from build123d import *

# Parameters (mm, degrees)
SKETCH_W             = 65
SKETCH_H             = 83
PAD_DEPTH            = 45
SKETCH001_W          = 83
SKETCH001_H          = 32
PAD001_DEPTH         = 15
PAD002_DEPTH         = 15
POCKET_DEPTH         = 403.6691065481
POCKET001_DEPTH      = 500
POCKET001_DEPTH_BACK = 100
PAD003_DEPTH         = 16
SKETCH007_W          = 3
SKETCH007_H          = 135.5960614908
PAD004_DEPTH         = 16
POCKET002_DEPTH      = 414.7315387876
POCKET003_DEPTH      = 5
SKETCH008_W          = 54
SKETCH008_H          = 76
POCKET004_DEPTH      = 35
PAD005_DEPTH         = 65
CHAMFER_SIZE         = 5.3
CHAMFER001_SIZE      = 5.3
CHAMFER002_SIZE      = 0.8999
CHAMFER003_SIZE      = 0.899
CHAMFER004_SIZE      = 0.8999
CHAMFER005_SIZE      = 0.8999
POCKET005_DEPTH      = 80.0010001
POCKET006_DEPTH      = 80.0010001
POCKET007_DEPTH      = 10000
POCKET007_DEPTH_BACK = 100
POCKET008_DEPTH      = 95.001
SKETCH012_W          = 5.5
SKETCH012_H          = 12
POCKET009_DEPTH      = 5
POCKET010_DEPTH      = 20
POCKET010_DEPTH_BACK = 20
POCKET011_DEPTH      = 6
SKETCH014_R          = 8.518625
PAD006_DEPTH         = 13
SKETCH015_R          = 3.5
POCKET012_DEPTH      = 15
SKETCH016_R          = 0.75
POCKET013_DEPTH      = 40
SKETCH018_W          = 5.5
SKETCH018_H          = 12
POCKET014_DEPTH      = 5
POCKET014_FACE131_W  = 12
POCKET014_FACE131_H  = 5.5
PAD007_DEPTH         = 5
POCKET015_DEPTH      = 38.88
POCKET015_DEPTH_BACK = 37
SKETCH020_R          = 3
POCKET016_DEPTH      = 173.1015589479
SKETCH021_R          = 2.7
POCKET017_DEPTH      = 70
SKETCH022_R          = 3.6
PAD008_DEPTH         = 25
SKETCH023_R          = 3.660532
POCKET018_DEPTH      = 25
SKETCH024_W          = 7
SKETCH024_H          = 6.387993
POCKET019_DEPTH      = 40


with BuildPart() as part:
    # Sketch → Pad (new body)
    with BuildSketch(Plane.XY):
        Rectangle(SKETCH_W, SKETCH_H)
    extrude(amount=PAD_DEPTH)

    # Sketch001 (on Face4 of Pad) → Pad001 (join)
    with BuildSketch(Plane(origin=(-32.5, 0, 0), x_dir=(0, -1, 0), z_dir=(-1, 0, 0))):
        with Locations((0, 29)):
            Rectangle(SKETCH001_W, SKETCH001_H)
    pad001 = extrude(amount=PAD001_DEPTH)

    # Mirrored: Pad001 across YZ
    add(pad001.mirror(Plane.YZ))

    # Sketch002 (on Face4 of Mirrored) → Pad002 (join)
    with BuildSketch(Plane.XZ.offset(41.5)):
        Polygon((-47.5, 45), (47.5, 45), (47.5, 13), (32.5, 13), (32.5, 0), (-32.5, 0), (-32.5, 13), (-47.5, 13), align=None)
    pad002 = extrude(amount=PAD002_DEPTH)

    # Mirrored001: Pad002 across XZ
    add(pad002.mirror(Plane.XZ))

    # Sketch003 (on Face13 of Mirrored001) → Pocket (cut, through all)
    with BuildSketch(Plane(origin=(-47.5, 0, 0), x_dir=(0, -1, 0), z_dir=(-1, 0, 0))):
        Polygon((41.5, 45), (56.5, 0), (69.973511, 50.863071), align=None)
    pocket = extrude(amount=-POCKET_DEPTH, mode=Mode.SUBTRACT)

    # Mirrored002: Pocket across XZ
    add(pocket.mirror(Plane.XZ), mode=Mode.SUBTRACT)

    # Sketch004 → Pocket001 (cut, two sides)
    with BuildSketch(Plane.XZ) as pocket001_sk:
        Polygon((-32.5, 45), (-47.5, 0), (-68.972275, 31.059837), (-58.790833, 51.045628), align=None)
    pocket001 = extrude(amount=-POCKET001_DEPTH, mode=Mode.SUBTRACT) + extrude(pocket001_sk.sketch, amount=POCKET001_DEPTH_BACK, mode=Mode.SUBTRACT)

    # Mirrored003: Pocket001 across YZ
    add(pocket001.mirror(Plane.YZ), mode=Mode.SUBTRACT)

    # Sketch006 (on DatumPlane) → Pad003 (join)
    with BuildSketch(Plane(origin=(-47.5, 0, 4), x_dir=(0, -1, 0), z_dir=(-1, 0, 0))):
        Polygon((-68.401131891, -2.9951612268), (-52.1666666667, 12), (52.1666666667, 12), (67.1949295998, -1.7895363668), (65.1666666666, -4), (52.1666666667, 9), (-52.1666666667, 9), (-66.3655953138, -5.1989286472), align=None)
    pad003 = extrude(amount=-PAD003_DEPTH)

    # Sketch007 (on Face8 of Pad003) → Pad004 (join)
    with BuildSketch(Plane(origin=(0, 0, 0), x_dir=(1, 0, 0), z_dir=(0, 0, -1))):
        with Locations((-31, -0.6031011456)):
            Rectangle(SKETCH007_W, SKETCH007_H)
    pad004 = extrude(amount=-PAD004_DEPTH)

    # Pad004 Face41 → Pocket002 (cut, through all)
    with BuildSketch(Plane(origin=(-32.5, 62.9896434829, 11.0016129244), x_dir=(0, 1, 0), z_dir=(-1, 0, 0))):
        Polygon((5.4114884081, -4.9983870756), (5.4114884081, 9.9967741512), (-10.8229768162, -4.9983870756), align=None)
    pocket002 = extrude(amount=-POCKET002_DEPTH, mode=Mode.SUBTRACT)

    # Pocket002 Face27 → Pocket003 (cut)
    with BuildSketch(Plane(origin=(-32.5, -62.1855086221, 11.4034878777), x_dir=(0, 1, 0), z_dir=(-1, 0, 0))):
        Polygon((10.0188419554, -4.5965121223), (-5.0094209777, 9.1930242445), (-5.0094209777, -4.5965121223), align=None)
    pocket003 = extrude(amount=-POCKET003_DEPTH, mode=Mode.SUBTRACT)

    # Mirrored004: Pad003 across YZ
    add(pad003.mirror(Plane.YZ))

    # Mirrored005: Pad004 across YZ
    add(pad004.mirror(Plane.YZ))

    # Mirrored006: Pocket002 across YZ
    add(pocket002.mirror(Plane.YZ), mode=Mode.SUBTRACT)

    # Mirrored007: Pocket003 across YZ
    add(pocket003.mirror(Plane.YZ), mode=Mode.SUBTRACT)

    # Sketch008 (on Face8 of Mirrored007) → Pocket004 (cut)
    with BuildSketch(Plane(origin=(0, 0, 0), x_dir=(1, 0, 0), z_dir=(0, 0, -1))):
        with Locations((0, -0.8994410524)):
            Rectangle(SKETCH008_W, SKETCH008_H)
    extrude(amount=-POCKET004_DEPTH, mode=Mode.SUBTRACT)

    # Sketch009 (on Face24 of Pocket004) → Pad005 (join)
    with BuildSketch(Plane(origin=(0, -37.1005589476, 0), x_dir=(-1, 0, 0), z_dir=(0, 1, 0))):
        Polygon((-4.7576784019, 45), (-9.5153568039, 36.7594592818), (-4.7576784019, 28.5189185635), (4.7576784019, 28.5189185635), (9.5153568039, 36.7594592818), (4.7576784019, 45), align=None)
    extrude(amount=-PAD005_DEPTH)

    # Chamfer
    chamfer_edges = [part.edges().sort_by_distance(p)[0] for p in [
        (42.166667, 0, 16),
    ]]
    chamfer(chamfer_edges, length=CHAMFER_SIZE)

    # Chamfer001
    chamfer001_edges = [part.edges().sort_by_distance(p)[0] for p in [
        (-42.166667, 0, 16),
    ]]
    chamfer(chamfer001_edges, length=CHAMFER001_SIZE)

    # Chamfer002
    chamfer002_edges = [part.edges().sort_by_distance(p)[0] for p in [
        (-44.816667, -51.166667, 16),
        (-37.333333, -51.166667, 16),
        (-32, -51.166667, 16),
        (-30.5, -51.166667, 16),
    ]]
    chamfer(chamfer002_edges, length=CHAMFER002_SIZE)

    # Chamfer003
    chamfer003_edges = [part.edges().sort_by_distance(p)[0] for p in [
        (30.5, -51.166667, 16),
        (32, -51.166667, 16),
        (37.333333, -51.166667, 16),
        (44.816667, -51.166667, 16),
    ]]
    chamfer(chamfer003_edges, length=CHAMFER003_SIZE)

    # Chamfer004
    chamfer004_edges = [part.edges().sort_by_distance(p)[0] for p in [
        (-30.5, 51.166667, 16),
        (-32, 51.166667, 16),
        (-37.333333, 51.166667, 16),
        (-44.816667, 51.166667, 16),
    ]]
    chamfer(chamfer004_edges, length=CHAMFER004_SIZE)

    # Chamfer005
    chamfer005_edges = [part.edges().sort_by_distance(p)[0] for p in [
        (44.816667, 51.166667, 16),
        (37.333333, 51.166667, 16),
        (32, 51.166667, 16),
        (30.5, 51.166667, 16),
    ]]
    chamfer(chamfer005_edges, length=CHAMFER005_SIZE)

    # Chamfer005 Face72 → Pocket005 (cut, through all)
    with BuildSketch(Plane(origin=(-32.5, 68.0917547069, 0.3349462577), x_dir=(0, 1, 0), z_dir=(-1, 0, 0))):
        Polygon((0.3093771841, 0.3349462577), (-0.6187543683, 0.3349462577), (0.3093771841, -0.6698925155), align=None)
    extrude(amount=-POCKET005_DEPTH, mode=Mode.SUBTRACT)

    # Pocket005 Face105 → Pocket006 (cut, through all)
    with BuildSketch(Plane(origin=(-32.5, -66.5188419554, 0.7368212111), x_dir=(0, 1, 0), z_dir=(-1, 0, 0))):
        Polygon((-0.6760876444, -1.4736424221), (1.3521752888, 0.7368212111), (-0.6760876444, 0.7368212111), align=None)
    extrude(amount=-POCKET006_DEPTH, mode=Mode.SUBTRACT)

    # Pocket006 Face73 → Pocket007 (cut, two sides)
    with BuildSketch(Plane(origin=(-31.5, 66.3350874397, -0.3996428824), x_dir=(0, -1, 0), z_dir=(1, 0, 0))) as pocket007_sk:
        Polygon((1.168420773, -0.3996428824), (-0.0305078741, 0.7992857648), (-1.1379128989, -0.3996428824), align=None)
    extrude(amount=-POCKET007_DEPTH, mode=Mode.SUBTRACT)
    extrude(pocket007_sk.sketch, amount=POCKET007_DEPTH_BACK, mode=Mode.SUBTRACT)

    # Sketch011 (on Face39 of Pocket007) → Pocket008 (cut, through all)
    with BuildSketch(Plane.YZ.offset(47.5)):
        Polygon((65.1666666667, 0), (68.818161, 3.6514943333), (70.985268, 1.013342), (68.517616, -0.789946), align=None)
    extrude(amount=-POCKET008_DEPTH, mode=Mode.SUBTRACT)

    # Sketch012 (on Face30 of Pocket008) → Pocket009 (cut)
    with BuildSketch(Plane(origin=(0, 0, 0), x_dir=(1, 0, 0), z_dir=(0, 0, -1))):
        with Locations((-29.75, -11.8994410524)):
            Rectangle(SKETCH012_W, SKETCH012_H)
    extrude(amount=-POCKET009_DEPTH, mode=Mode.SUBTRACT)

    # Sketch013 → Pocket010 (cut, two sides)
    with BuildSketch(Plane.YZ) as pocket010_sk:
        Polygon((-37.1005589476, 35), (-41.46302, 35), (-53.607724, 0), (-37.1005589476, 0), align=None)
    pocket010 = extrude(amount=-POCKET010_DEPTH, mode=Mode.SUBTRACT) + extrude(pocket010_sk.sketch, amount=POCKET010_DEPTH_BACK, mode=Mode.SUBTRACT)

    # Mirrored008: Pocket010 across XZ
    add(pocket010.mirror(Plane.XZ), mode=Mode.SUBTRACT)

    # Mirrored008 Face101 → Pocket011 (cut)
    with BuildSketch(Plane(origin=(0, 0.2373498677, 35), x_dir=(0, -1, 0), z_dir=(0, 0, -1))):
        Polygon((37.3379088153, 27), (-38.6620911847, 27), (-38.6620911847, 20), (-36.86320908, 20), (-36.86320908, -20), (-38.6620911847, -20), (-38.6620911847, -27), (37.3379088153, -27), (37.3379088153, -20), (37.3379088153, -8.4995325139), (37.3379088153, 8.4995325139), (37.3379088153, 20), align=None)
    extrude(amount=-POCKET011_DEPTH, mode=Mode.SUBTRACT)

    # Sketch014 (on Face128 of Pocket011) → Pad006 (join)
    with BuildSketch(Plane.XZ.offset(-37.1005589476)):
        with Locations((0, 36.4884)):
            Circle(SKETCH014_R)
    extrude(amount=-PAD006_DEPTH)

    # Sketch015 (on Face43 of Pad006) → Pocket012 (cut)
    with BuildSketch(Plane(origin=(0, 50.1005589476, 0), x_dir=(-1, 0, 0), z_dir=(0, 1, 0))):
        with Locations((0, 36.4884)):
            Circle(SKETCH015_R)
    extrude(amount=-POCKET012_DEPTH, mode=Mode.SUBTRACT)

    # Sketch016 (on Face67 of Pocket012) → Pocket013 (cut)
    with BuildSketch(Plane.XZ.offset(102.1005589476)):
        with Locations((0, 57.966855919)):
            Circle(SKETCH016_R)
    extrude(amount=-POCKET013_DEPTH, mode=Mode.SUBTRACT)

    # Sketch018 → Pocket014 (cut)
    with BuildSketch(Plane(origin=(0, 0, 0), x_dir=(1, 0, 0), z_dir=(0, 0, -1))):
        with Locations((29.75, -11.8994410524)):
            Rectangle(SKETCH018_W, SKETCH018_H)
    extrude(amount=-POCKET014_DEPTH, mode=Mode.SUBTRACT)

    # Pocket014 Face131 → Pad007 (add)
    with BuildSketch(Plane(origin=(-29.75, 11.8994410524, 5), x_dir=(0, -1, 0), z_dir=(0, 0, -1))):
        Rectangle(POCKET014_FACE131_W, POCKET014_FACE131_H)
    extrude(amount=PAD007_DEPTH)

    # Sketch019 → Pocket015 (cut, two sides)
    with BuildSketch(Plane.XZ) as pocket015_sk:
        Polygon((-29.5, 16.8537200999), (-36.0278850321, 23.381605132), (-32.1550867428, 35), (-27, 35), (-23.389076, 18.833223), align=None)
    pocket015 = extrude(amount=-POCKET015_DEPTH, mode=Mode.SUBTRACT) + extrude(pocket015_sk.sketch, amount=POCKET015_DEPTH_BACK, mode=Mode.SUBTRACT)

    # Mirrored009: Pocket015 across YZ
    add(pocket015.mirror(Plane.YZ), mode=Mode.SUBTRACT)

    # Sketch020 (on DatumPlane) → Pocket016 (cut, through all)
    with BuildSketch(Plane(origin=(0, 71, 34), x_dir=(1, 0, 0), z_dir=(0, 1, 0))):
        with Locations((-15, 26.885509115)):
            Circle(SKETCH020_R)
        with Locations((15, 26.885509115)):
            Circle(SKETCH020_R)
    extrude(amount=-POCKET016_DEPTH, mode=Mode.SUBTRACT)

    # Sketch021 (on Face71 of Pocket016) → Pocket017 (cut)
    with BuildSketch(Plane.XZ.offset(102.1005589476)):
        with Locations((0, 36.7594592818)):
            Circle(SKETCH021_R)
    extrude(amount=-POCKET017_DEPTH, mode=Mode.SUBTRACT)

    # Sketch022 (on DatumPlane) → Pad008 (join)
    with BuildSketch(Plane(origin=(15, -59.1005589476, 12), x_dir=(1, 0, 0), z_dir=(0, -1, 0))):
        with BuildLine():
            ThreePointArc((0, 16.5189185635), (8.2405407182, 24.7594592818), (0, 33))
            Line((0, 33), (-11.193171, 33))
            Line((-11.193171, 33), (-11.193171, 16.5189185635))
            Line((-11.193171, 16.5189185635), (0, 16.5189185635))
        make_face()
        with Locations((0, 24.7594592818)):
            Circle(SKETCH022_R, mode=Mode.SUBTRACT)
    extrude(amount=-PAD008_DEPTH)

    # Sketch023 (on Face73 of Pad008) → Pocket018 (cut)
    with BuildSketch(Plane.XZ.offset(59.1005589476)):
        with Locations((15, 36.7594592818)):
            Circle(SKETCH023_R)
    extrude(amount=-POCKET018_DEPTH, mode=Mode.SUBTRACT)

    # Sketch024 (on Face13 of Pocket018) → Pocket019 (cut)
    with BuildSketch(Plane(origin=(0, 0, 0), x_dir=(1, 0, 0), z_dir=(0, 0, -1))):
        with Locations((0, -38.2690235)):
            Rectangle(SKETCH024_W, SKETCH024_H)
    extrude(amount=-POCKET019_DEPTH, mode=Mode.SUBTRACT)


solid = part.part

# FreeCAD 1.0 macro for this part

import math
import FreeCAD as App
import Part
import Sketcher

V = App.Vector
Q = App.Units.Quantity


def edges_at(feature, points):
    """Names of the edges that pass closest to the given points."""
    edges = feature.Shape.Edges
    near = lambda p: min(range(len(edges)), key=lambda i: edges[i].distToShape(Part.Vertex(*p))[0])
    return sorted({f"Edge{near(p) + 1}" for p in points})


def add_polygon(sketch, points):
    """Adds a closed chain of lines whose ends are joined by coincident constraints."""
    first, n = sketch.GeometryCount, len(points)
    for a, b in zip(points, points[1:] + points[:1]):
        sketch.addGeometry(Part.LineSegment(App.Vector(*a, 0), App.Vector(*b, 0)), False)
    for i in range(n):
        sketch.addConstraint(Sketcher.Constraint("Coincident", first + i, 2, first + (i + 1) % n, 1))

doc = App.newDocument("Part")
body = doc.addObject("PartDesign::Body", "Body")

# Sketch on XY plane
sketch1 = body.newObject("Sketcher::SketchObject", "Sketch")
sketch1.AttachmentSupport = (doc.getObject("XY_Plane"), [""])
sketch1.MapMode = "FlatFace"
add_polygon(sketch1, [(-32.5, 41.5), (-32.5, -41.5), (32.5, -41.5), (32.5, 41.5)])  # lines 0-3
sketch1.addConstraint([
    Sketcher.Constraint("Vertical", 0),
    Sketcher.Constraint("Horizontal", 1),
    Sketcher.Constraint("Vertical", 2),
    Sketcher.Constraint("Horizontal", 3),
    Sketcher.Constraint("Symmetric", 0, 2, 2, 2, -1, 1),
    Sketcher.Constraint("DistanceX", 1, 1, 1, 2, 65.0),
    Sketcher.Constraint("DistanceY", 0, 2, 0, 1, 83.0),
])
pad1 = body.newObject("PartDesign::Pad", "Pad")
pad1.Profile = sketch1
pad1.Length = 45

# Sketch on YZ plane
sketch2 = body.newObject("Sketcher::SketchObject", "Sketch001")
sketch2.AttachmentSupport = (doc.getObject("YZ_Plane"), [""])
sketch2.MapMode = "FlatFace"
sketch2.AttachmentOffset = App.Placement(V(0, 0, -32.5), App.Rotation())
add_polygon(sketch2, [(41.5, 45), (41.5, 13), (-41.5, 13), (-41.5, 45)])  # lines 0-3
sketch2.addConstraint([
    Sketcher.Constraint("Vertical", 0),
    Sketcher.Constraint("Horizontal", 1),
    Sketcher.Constraint("Vertical", 2),
    Sketcher.Constraint("Horizontal", 3),
    Sketcher.Constraint("DistanceX", 1, 2, 1, 1, 83.0),
    Sketcher.Constraint("DistanceY", 0, 2, 0, 1, 32.0),
    Sketcher.Constraint("DistanceY", -1, 1, 0, 2, 13.0),
    Sketcher.Constraint("DistanceX", -1, 1, 0, 2, 41.5),
])
pad2 = body.newObject("PartDesign::Pad", "Pad001")
pad2.Profile = sketch2
pad2.Length = 15
pad2.Reversed = True
doc.recompute()

mirrored = body.newObject("PartDesign::Mirrored", "Mirrored")
mirrored.Originals = [pad2]
mirrored.MirrorPlane = (doc.getObject("YZ_Plane"), [""])
body.Tip = mirrored

# Sketch on XZ plane
sketch3 = body.newObject("Sketcher::SketchObject", "Sketch002")
sketch3.AttachmentSupport = (doc.getObject("XZ_Plane"), [""])
sketch3.MapMode = "FlatFace"
sketch3.AttachmentOffset = App.Placement(V(0, 0, 41.5), App.Rotation())
add_polygon(sketch3, [(47.5, 45), (-47.5, 45), (-47.5, 13), (-32.5, 13), (-32.5, 0), (32.5, 0), (32.5, 13), (47.5, 13)])  # lines 0-7
sketch3.addConstraint([
    Sketcher.Constraint("Horizontal", 0),
    Sketcher.Constraint("Vertical", 1),
    Sketcher.Constraint("Horizontal", 2),
    Sketcher.Constraint("Vertical", 3),
    Sketcher.Constraint("Horizontal", 4),
    Sketcher.Constraint("Vertical", 5),
    Sketcher.Constraint("Horizontal", 6),
    Sketcher.Constraint("Vertical", 7),
    Sketcher.Constraint("Symmetric", 3, 2, 4, 2, -1, 1),
    Sketcher.Constraint("Symmetric", 1, 2, 6, 2, -2),
    Sketcher.Constraint("DistanceX", 0, 2, 0, 1, 95.0),
    Sketcher.Constraint("DistanceX", 2, 1, 2, 2, 15.0),
    Sketcher.Constraint("DistanceY", 1, 2, 1, 1, 32.0),
    Sketcher.Constraint("DistanceY", 3, 2, 3, 1, 13.0),
])
pad3 = body.newObject("PartDesign::Pad", "Pad002")
pad3.Profile = sketch3
pad3.Length = 15
doc.recompute()

mirrored2 = body.newObject("PartDesign::Mirrored", "Mirrored001")
mirrored2.Originals = [pad3]
mirrored2.MirrorPlane = (doc.getObject("XZ_Plane"), [""])
body.Tip = mirrored2

# Sketch on YZ plane
sketch4 = body.newObject("Sketcher::SketchObject", "Sketch003")
sketch4.AttachmentSupport = (doc.getObject("YZ_Plane"), [""])
sketch4.MapMode = "FlatFace"
sketch4.AttachmentOffset = App.Placement(V(0, 0, -47.5), App.Rotation())
add_polygon(sketch4, [(-41.5, 45), (-56.5, 0), (-69.973511, 50.863071)])  # lines 0-2
sketch4.addConstraint([
    Sketcher.Constraint("PointOnObject", 0, 2, -1),
    Sketcher.Constraint("DistanceY", -1, 1, 2, 2, 45.0),
    Sketcher.Constraint("DistanceX", 0, 2, 2, 2, 15.0),
    Sketcher.Constraint("DistanceX", 0, 2, -1, 1, 56.5),
    Sketcher.Constraint("Distance", 1, 52.617369),
    Sketcher.Constraint("DistanceX", 1, 2, -1, 1, 69.973511),
])
pocket1 = body.newObject("PartDesign::Pocket", "Pocket")
pocket1.Profile = sketch4
pocket1.Type = "ThroughAll"
pocket1.Reversed = True
doc.recompute()

mirrored3 = body.newObject("PartDesign::Mirrored", "Mirrored002")
mirrored3.Originals = [pocket1]
mirrored3.MirrorPlane = (doc.getObject("XZ_Plane"), [""])
body.Tip = mirrored3

# Sketch on XZ plane
sketch5 = body.newObject("Sketcher::SketchObject", "Sketch004")
sketch5.AttachmentSupport = (doc.getObject("XZ_Plane"), [""])
sketch5.MapMode = "FlatFace"
add_polygon(sketch5, [(-47.5, 0), (-32.5, 45), (-58.790833, 51.045628), (-68.972275, 31.059837)])  # lines 0-3
sketch5.addConstraint([
    Sketcher.Constraint("PointOnObject", 3, 2, -1),
    Sketcher.Constraint("DistanceY", -1, 1, 0, 2, 45.0),
    Sketcher.Constraint("DistanceX", 3, 2, 0, 2, 15.0),
    Sketcher.Constraint("DistanceX", 0, 2, -1, 1, 32.5),
    Sketcher.Constraint("Distance", 1, 26.976981),
    Sketcher.Constraint("Distance", 2, 22.429748),
    Sketcher.Constraint("DistanceY", 0, 2, 1, 2, 6.045628),
    Sketcher.Constraint("DistanceX", 2, 2, 1, 2, 10.181442),
])
pocket2 = body.newObject("PartDesign::Pocket", "Pocket001")
pocket2.Profile = sketch5
pocket2.Type = "ThroughAll"
pocket2.Midplane = True
doc.recompute()

mirrored4 = body.newObject("PartDesign::Mirrored", "Mirrored003")
mirrored4.Originals = [pocket2]
mirrored4.MirrorPlane = (doc.getObject("YZ_Plane"), [""])
body.Tip = mirrored4

# Sketch on YZ plane
sketch6 = body.newObject("Sketcher::SketchObject", "Sketch005")
sketch6.AttachmentSupport = (doc.getObject("YZ_Plane"), [""])
sketch6.MapMode = "FlatFace"
sketch6.AttachmentOffset = App.Placement(V(0, 0, -47.5), App.Rotation())
add_polygon(sketch6, [(52.166667, 16), (68.401132, 1.004839), (66.365595, -1.198929), (52.166667, 13), (-52.166667, 13), (-65.166667, 0), (-67.19493, 2.210464), (-52.166667, 16)])  # lines 0-7
sketch6.addConstraint([
    Sketcher.Constraint("Horizontal", 3),
    Sketcher.Constraint("Horizontal", 7),
    Sketcher.Constraint("PointOnObject", 4, 2, -1),
    Sketcher.Constraint("Perpendicular", 0, 1),
    Sketcher.Constraint("Perpendicular", 2, 4),
    Sketcher.Constraint("Perpendicular", 5, 6),
    Sketcher.Constraint("Vertical", 3, 2, 6, 2),
    Sketcher.Constraint("Vertical", 2, 2, 7, 2),
    Sketcher.Constraint("Equal", 1, 5),
    Sketcher.Constraint("Angle", 2, Q("135 deg")),
    Sketcher.Constraint("Distance", 1, 3.0),
    Sketcher.Constraint("DistanceY", -1, 1, 2, 2, 13.0),
    Sketcher.Constraint("DistanceY", -1, 1, 6, 2, 16.0),
    Sketcher.Constraint("DistanceX", 3, 2, 0, 2, 120.567799),
    Sketcher.Constraint("Distance", 0, 22.100062),
    Sketcher.Constraint("DistanceX", -1, 1, 0, 2, 68.401132),
])
pad4 = body.newObject("PartDesign::Pad", "Pad003")
pad4.Profile = sketch6
pad4.Length = 16

# Sketch on XY plane
sketch7 = body.newObject("Sketcher::SketchObject", "Sketch006")
sketch7.AttachmentSupport = (doc.getObject("XY_Plane"), [""])
sketch7.MapMode = "FlatFace"
add_polygon(sketch7, [(-32.5, -67.19493), (-32.5, 68.401132), (-29.5, 68.401132), (-29.5, -67.19493)])  # lines 0-3
sketch7.addConstraint([
    Sketcher.Constraint("Vertical", 0),
    Sketcher.Constraint("Horizontal", 1),
    Sketcher.Constraint("Vertical", 2),
    Sketcher.Constraint("Horizontal", 3),
    Sketcher.Constraint("DistanceX", 1, 1, 1, 2, 3.0),
    Sketcher.Constraint("DistanceX", 0, 2, -1, 1, 32.5),
    Sketcher.Constraint("DistanceY", 0, 1, 0, 2, 135.596061),
    Sketcher.Constraint("DistanceY", -1, 1, 0, 2, 68.401132),
])
pad5 = body.newObject("PartDesign::Pad", "Pad004")
pad5.Profile = sketch7
pad5.Length = 16

# Sketch on YZ plane
sketch8 = body.newObject("Sketcher::SketchObject", "Sketch007")
sketch8.AttachmentSupport = (doc.getObject("YZ_Plane"), [""])
sketch8.MapMode = "FlatFace"
sketch8.AttachmentOffset = App.Placement(V(0, 0, -32.5), App.Rotation())
add_polygon(sketch8, [(68.401132, 16), (68.401132, 1.004839), (52.166667, 16)])  # lines 0-2
sketch8.addConstraint([
    Sketcher.Constraint("Vertical", 0),
    Sketcher.Constraint("Horizontal", 2),
    Sketcher.Constraint("DistanceY", -1, 1, 1, 2, 16.0),
    Sketcher.Constraint("DistanceY", 0, 2, 0, 1, 14.995161),
    Sketcher.Constraint("Distance", 1, 22.100062),
    Sketcher.Constraint("DistanceX", -1, 1, 0, 2, 68.401132),
])
pocket3 = body.newObject("PartDesign::Pocket", "Pocket002")
pocket3.Profile = sketch8
pocket3.Type = "ThroughAll"
pocket3.Reversed = True

# Sketch on YZ plane
sketch9 = body.newObject("Sketcher::SketchObject", "Sketch008")
sketch9.AttachmentSupport = (doc.getObject("YZ_Plane"), [""])
sketch9.MapMode = "FlatFace"
sketch9.AttachmentOffset = App.Placement(V(0, 0, -32.5), App.Rotation())
add_polygon(sketch9, [(-52.166667, 16), (-67.19493, 2.210464), (-67.19493, 16)])  # lines 0-2
sketch9.addConstraint([
    Sketcher.Constraint("Vertical", 1),
    Sketcher.Constraint("Horizontal", 2),
    Sketcher.Constraint("DistanceY", -1, 1, 1, 2, 16.0),
    Sketcher.Constraint("Distance", 0, 20.396078),
    Sketcher.Constraint("DistanceX", 2, 1, 2, 2, 15.028263),
    Sketcher.Constraint("DistanceX", 0, 2, -1, 1, 67.19493),
])
pocket4 = body.newObject("PartDesign::Pocket", "Pocket003")
pocket4.Profile = sketch9
pocket4.Length = 5
pocket4.Reversed = True
doc.recompute()

mirrored5 = body.newObject("PartDesign::Mirrored", "Mirrored004")
mirrored5.Originals = [pad4]
mirrored5.MirrorPlane = (doc.getObject("YZ_Plane"), [""])
body.Tip = mirrored5
doc.recompute()

mirrored6 = body.newObject("PartDesign::Mirrored", "Mirrored005")
mirrored6.Originals = [pad5]
mirrored6.MirrorPlane = (doc.getObject("YZ_Plane"), [""])
body.Tip = mirrored6
doc.recompute()

mirrored7 = body.newObject("PartDesign::Mirrored", "Mirrored006")
mirrored7.Originals = [pocket3]
mirrored7.MirrorPlane = (doc.getObject("YZ_Plane"), [""])
body.Tip = mirrored7
doc.recompute()

mirrored8 = body.newObject("PartDesign::Mirrored", "Mirrored007")
mirrored8.Originals = [pocket4]
mirrored8.MirrorPlane = (doc.getObject("YZ_Plane"), [""])
body.Tip = mirrored8

# Sketch on XY plane
sketch10 = body.newObject("Sketcher::SketchObject", "Sketch009")
sketch10.AttachmentSupport = (doc.getObject("XY_Plane"), [""])
sketch10.MapMode = "FlatFace"
add_polygon(sketch10, [(-27, -37.100559), (-27, 38.899441), (27, 38.899441), (27, -37.100559)])  # lines 0-3
sketch10.addConstraint([
    Sketcher.Constraint("Vertical", 0),
    Sketcher.Constraint("Horizontal", 1),
    Sketcher.Constraint("Vertical", 2),
    Sketcher.Constraint("Horizontal", 3),
    Sketcher.Constraint("DistanceX", 1, 1, 1, 2, 54.0),
    Sketcher.Constraint("DistanceY", 0, 1, 0, 2, 76.0),
    Sketcher.Constraint("DistanceX", 0, 2, -1, 1, 27.0),
    Sketcher.Constraint("DistanceY", -1, 1, 0, 2, 38.899441),
])
pocket5 = body.newObject("PartDesign::Pocket", "Pocket004")
pocket5.Profile = sketch10
pocket5.Length = 35
pocket5.Reversed = True

# Sketch on XZ plane
sketch11 = body.newObject("Sketcher::SketchObject", "Sketch010")
sketch11.AttachmentSupport = (doc.getObject("XZ_Plane"), [""])
sketch11.MapMode = "FlatFace"
sketch11.AttachmentOffset = App.Placement(V(0, 0, 37.100559), App.Rotation())
add_polygon(sketch11, [(4.757678, 45), (9.515357, 36.759459), (4.757678, 28.518919), (-4.757678, 28.518919), (-9.515357, 36.759459), (-4.757678, 45)])  # lines 0-5
sketch11.addConstraint([
    Sketcher.Constraint("Horizontal", 2),
    Sketcher.Constraint("Horizontal", 5),
    Sketcher.Constraint("Symmetric", 0, 2, 3, 2, -2),
    Sketcher.Constraint("Parallel", 0, 3),
    Sketcher.Constraint("Parallel", 1, 4),
    Sketcher.Constraint("Vertical", 2, 2, 4, 2),
    Sketcher.Constraint("Vertical", 1, 2, 5, 2),
    Sketcher.Constraint("Angle", 0, Q("-60 deg")),
    Sketcher.Constraint("DistanceY", -1, 1, 4, 2, 45.0),
    Sketcher.Constraint("DistanceX", 2, 2, 2, 1, 9.515357),
    Sketcher.Constraint("DistanceY", -1, 1, 0, 2, 36.759459),
])
pad6 = body.newObject("PartDesign::Pad", "Pad005")
pad6.Profile = sketch11
pad6.Length = 65
doc.recompute()

chamfer = body.newObject("PartDesign::Chamfer", "Chamfer")
chamfer.Base = (pad6, edges_at(pad6, [(42.167, 0, 16)]))
chamfer.Size = 5.3
doc.recompute()

chamfer2 = body.newObject("PartDesign::Chamfer", "Chamfer001")
chamfer2.Base = (chamfer, edges_at(chamfer, [(-42.167, 0, 16)]))
chamfer2.Size = 5.3
doc.recompute()

chamfer3 = body.newObject("PartDesign::Chamfer", "Chamfer002")
chamfer3.Base = (chamfer2, edges_at(chamfer2, [
    (-38.483, -51.167, 16),
    (-38.483, -51.167, 16),
    (-38.483, -51.167, 16),
    (-38.483, -51.167, 16),
]))
chamfer3.Size = 0.8999
doc.recompute()

chamfer4 = body.newObject("PartDesign::Chamfer", "Chamfer003")
chamfer4.Base = (chamfer3, edges_at(chamfer3, [
    (38.483, -51.167, 16),
    (38.483, -51.167, 16),
    (38.483, -51.167, 16),
    (38.483, -51.167, 16),
]))
chamfer4.Size = 0.899
doc.recompute()

chamfer5 = body.newObject("PartDesign::Chamfer", "Chamfer004")
chamfer5.Base = (chamfer4, edges_at(chamfer4, [
    (-38.483, 51.167, 16),
    (-38.483, 51.167, 16),
    (-38.483, 51.167, 16),
    (-38.483, 51.167, 16),
]))
chamfer5.Size = 0.8999
doc.recompute()

chamfer6 = body.newObject("PartDesign::Chamfer", "Chamfer005")
chamfer6.Base = (chamfer5, edges_at(chamfer5, [
    (38.483, 51.167, 16),
    (38.483, 51.167, 16),
    (38.483, 51.167, 16),
    (38.483, 51.167, 16),
]))
chamfer6.Size = 0.8999

# Sketch on YZ plane
sketch12 = body.newObject("Sketcher::SketchObject", "Sketch011")
sketch12.AttachmentSupport = (doc.getObject("YZ_Plane"), [""])
sketch12.MapMode = "FlatFace"
sketch12.AttachmentOffset = App.Placement(V(0, 0, -32.5), App.Rotation())
add_polygon(sketch12, [(68.401132, 0), (67.473, 0), (68.401132, 1.004839)])  # lines 0-2
sketch12.addConstraint([
    Sketcher.Constraint("Horizontal", 0),
    Sketcher.Constraint("Vertical", 2),
    Sketcher.Constraint("PointOnObject", 0, 2, -1),
    Sketcher.Constraint("DistanceX", -1, 1, 0, 2, 67.473),
    Sketcher.Constraint("DistanceX", 0, 2, 0, 1, 0.928132),
    Sketcher.Constraint("DistanceY", 2, 2, 2, 1, 1.004839),
])
pocket6 = body.newObject("PartDesign::Pocket", "Pocket005")
pocket6.Profile = sketch12
pocket6.Type = "ThroughAll"
pocket6.Reversed = True

# Sketch on YZ plane
sketch13 = body.newObject("Sketcher::SketchObject", "Sketch012")
sketch13.AttachmentSupport = (doc.getObject("YZ_Plane"), [""])
sketch13.MapMode = "FlatFace"
sketch13.AttachmentOffset = App.Placement(V(0, 0, -32.5), App.Rotation())
add_polygon(sketch13, [(-67.19493, 2.210464), (-65.166667, 0), (-67.19493, 0)])  # lines 0-2
sketch13.addConstraint([
    Sketcher.Constraint("Horizontal", 1),
    Sketcher.Constraint("Vertical", 2),
    Sketcher.Constraint("PointOnObject", 0, 2, -1),
    Sketcher.Constraint("Distance", 0, 3.0),
    Sketcher.Constraint("DistanceX", 1, 2, 1, 1, 2.028263),
    Sketcher.Constraint("DistanceX", 1, 2, -1, 1, 67.19493),
])
pocket7 = body.newObject("PartDesign::Pocket", "Pocket006")
pocket7.Profile = sketch13
pocket7.Type = "ThroughAll"
pocket7.Reversed = True

# Sketch on YZ plane
sketch14 = body.newObject("Sketcher::SketchObject", "Sketch013")
sketch14.AttachmentSupport = (doc.getObject("YZ_Plane"), [""])
sketch14.MapMode = "FlatFace"
sketch14.AttachmentOffset = App.Placement(V(0, 0, -31.5), App.Rotation())
add_polygon(sketch14, [(65.166667, 0), (66.365595, -1.198929), (67.473, 0)])  # lines 0-2
sketch14.addConstraint([
    Sketcher.Constraint("Horizontal", 2),
    Sketcher.Constraint("PointOnObject", 1, 2, -1),
    Sketcher.Constraint("Angle", 0, Q("-45 deg")),
    Sketcher.Constraint("DistanceX", -1, 1, 1, 2, 67.473),
    Sketcher.Constraint("Distance", 0, 1.695541),
    Sketcher.Constraint("DistanceX", 2, 2, 2, 1, 2.306334),
])
pocket8 = body.newObject("PartDesign::Pocket", "Pocket007")
pocket8.Profile = sketch14
pocket8.Type = "ThroughAll"
pocket8.Midplane = True

# Sketch on YZ plane
sketch15 = body.newObject("Sketcher::SketchObject", "Sketch014")
sketch15.AttachmentSupport = (doc.getObject("YZ_Plane"), [""])
sketch15.MapMode = "FlatFace"
sketch15.AttachmentOffset = App.Placement(V(0, 0, 47.5), App.Rotation())
add_polygon(sketch15, [(68.818161, 3.651494), (65.166667, 0), (68.517616, -0.789946), (70.985268, 1.013342)])  # lines 0-3
sketch15.addConstraint([
    Sketcher.Constraint("PointOnObject", 0, 2, -1),
    Sketcher.Constraint("Angle", 0, Q("-135 deg")),
    Sketcher.Constraint("Distance", 1, 3.442801),
    Sketcher.Constraint("DistanceX", 0, 2, 2, 2, 5.818601),
    Sketcher.Constraint("Distance", 2, 3.05633),
    Sketcher.Constraint("DistanceX", -1, 1, 2, 2, 70.985268),
    Sketcher.Constraint("DistanceX", -1, 1, 3, 2, 68.818161),
    Sketcher.Constraint("DistanceX", 0, 2, 1, 2, 3.350949),
])
pocket9 = body.newObject("PartDesign::Pocket", "Pocket008")
pocket9.Profile = sketch15
pocket9.Type = "ThroughAll"

# Sketch on XY plane
sketch16 = body.newObject("Sketcher::SketchObject", "Sketch015")
sketch16.AttachmentSupport = (doc.getObject("XY_Plane"), [""])
sketch16.MapMode = "FlatFace"
add_polygon(sketch16, [(-32.5, 5.899441), (-32.5, 17.899441), (-27, 17.899441), (-27, 5.899441)])  # lines 0-3
sketch16.addConstraint([
    Sketcher.Constraint("Vertical", 0),
    Sketcher.Constraint("Horizontal", 1),
    Sketcher.Constraint("Vertical", 2),
    Sketcher.Constraint("Horizontal", 3),
    Sketcher.Constraint("DistanceY", 0, 1, 0, 2, 12.0),
    Sketcher.Constraint("DistanceX", 1, 1, 1, 2, 5.5),
    Sketcher.Constraint("DistanceX", 1, 2, -1, 1, 27.0),
    Sketcher.Constraint("DistanceY", -1, 1, 0, 2, 17.899441),
])
pocket10 = body.newObject("PartDesign::Pocket", "Pocket009")
pocket10.Profile = sketch16
pocket10.Length = 5
pocket10.Reversed = True

# Sketch on YZ plane
sketch17 = body.newObject("Sketcher::SketchObject", "Sketch016")
sketch17.AttachmentSupport = (doc.getObject("YZ_Plane"), [""])
sketch17.MapMode = "FlatFace"
add_polygon(sketch17, [(-37.100559, 35), (-41.46302, 35), (-53.607724, 0), (-37.100559, 0)])  # lines 0-3
sketch17.addConstraint([
    Sketcher.Constraint("Horizontal", 0),
    Sketcher.Constraint("Horizontal", 2),
    Sketcher.Constraint("Vertical", 3),
    Sketcher.Constraint("PointOnObject", 1, 2, -1),
    Sketcher.Constraint("DistanceY", 3, 1, 3, 2, 35.0),
    Sketcher.Constraint("DistanceX", 0, 2, 0, 1, 4.362461),
    Sketcher.Constraint("DistanceX", 2, 1, 2, 2, 16.507165),
    Sketcher.Constraint("DistanceX", 0, 2, -1, 1, 41.46302),
])
pocket11 = body.newObject("PartDesign::Pocket", "Pocket010")
pocket11.Profile = sketch17
pocket11.Type = "TwoLengths"
pocket11.Length = 20
pocket11.Length2 = 20
doc.recompute()

mirrored9 = body.newObject("PartDesign::Mirrored", "Mirrored008")
mirrored9.Originals = [pocket11]
mirrored9.MirrorPlane = (doc.getObject("XZ_Plane"), [""])
body.Tip = mirrored9

# Sketch on XY plane
sketch18 = body.newObject("Sketcher::SketchObject", "Sketch017")
sketch18.AttachmentSupport = (doc.getObject("XY_Plane"), [""])
sketch18.MapMode = "FlatFace"
sketch18.AttachmentOffset = App.Placement(V(0, 0, 35), App.Rotation())
add_polygon(sketch18, [(-27, -37.100559), (-27, 38.899441), (-20, 38.899441), (-20, 37.100559), (20, 37.100559), (20, 38.899441), (27, 38.899441), (27, -37.100559)])  # lines 0-7
sketch18.addConstraint([
    Sketcher.Constraint("Vertical", 0),
    Sketcher.Constraint("Horizontal", 1),
    Sketcher.Constraint("Vertical", 2),
    Sketcher.Constraint("Horizontal", 3),
    Sketcher.Constraint("Vertical", 4),
    Sketcher.Constraint("Horizontal", 5),
    Sketcher.Constraint("Vertical", 6),
    Sketcher.Constraint("Horizontal", 7),
    Sketcher.Constraint("Symmetric", 1, 2, 4, 2, -2),
    Sketcher.Constraint("Equal", 1, 5),
    Sketcher.Constraint("DistanceX", 1, 1, 1, 2, 7.0),
    Sketcher.Constraint("DistanceX", 3, 1, 3, 2, 40.0),
    Sketcher.Constraint("DistanceY", 0, 1, 0, 2, 76.0),
    Sketcher.Constraint("DistanceY", 2, 2, 2, 1, 1.798882),
    Sketcher.Constraint("DistanceY", -1, 1, 0, 2, 38.899441),
])
pocket12 = body.newObject("PartDesign::Pocket", "Pocket011")
pocket12.Profile = sketch18
pocket12.Length = 6
pocket12.Reversed = True

# Sketch on XZ plane
sketch19 = body.newObject("Sketcher::SketchObject", "Sketch018")
sketch19.AttachmentSupport = (doc.getObject("XZ_Plane"), [""])
sketch19.MapMode = "FlatFace"
sketch19.AttachmentOffset = App.Placement(V(0, 0, -37.100559), App.Rotation())
sketch19.addGeometry(Part.Circle(V(0, 36.4884, 0), V(0, 0, 1), 8.518625), False)
sketch19.addConstraint([
    Sketcher.Constraint("PointOnObject", 0, 3, -2),
    Sketcher.Constraint("Diameter", 0, 17.03725),
    Sketcher.Constraint("DistanceY", -1, 1, 0, 3, 36.4884),
])
pad7 = body.newObject("PartDesign::Pad", "Pad006")
pad7.Profile = sketch19
pad7.Length = 13
pad7.Reversed = True

# Sketch on XZ plane
sketch20 = body.newObject("Sketcher::SketchObject", "Sketch019")
sketch20.AttachmentSupport = (doc.getObject("XZ_Plane"), [""])
sketch20.MapMode = "FlatFace"
sketch20.AttachmentOffset = App.Placement(V(0, 0, -50.100559), App.Rotation())
sketch20.addGeometry(Part.Circle(V(0, 36.4884, 0), V(0, 0, 1), 3.5), False)
sketch20.addConstraint([
    Sketcher.Constraint("PointOnObject", 0, 3, -2),
    Sketcher.Constraint("Diameter", 0, 7.0),
    Sketcher.Constraint("DistanceY", -1, 1, 0, 3, 36.4884),
])
pocket13 = body.newObject("PartDesign::Pocket", "Pocket012")
pocket13.Profile = sketch20
pocket13.Length = 15
pocket13.Reversed = True

# Sketch on XZ plane
sketch21 = body.newObject("Sketcher::SketchObject", "Sketch020")
sketch21.AttachmentSupport = (doc.getObject("XZ_Plane"), [""])
sketch21.MapMode = "FlatFace"
sketch21.AttachmentOffset = App.Placement(V(0, 0, 102.100559), App.Rotation())
sketch21.addGeometry(Part.Circle(V(0, 57.966856, 0), V(0, 0, 1), 0.75), False)
sketch21.addConstraint([
    Sketcher.Constraint("PointOnObject", 0, 3, -2),
    Sketcher.Constraint("Diameter", 0, 1.5),
    Sketcher.Constraint("DistanceY", -1, 1, 0, 3, 57.966856),
])
pocket14 = body.newObject("PartDesign::Pocket", "Pocket013")
pocket14.Profile = sketch21
pocket14.Length = 40

# Sketch on XY plane
sketch22 = body.newObject("Sketcher::SketchObject", "Sketch021")
sketch22.AttachmentSupport = (doc.getObject("XY_Plane"), [""])
sketch22.MapMode = "FlatFace"
add_polygon(sketch22, [(27, 5.899441), (27, 17.899441), (32.5, 17.899441), (32.5, 5.899441)])  # lines 0-3
sketch22.addConstraint([
    Sketcher.Constraint("Vertical", 0),
    Sketcher.Constraint("Horizontal", 1),
    Sketcher.Constraint("Vertical", 2),
    Sketcher.Constraint("Horizontal", 3),
    Sketcher.Constraint("DistanceY", 0, 1, 0, 2, 12.0),
    Sketcher.Constraint("DistanceX", 1, 1, 1, 2, 5.5),
    Sketcher.Constraint("DistanceX", -1, 1, 0, 2, 27.0),
    Sketcher.Constraint("DistanceY", -1, 1, 0, 2, 17.899441),
])
pocket15 = body.newObject("PartDesign::Pocket", "Pocket014")
pocket15.Profile = sketch22
pocket15.Length = 5
pocket15.Reversed = True

# Sketch on XY plane
sketch23 = body.newObject("Sketcher::SketchObject", "Sketch022")
sketch23.AttachmentSupport = (doc.getObject("XY_Plane"), [""])
sketch23.MapMode = "FlatFace"
sketch23.AttachmentOffset = App.Placement(V(0, 0, 5), App.Rotation())
add_polygon(sketch23, [(-32.5, 17.899441), (-27, 17.899441), (-27, 5.899441), (-32.5, 5.899441)])  # lines 0-3
sketch23.addConstraint([
    Sketcher.Constraint("Horizontal", 0),
    Sketcher.Constraint("Vertical", 1),
    Sketcher.Constraint("Horizontal", 2),
    Sketcher.Constraint("Vertical", 3),
    Sketcher.Constraint("DistanceY", 1, 2, 1, 1, 12.0),
    Sketcher.Constraint("DistanceX", 0, 1, 0, 2, 5.5),
    Sketcher.Constraint("DistanceX", 0, 2, -1, 1, 27.0),
    Sketcher.Constraint("DistanceY", -1, 1, 0, 2, 17.899441),
])
pad8 = body.newObject("PartDesign::Pad", "Pad007")
pad8.Profile = sketch23
pad8.Length = 5
pad8.Reversed = True

# Sketch on XZ plane
sketch24 = body.newObject("Sketcher::SketchObject", "Sketch023")
sketch24.AttachmentSupport = (doc.getObject("XZ_Plane"), [""])
sketch24.MapMode = "FlatFace"
add_polygon(sketch24, [(-36.027885, 23.381605), (-29.5, 16.85372), (-23.389076, 18.833223), (-27, 35), (-32.155087, 35)])  # lines 0-4
sketch24.addConstraint([
    Sketcher.Constraint("Horizontal", 3),
    Sketcher.Constraint("Angle", 0, Q("-45 deg")),
    Sketcher.Constraint("DistanceX", 2, 2, -1, 1, 27.0),
    Sketcher.Constraint("DistanceY", -1, 1, 2, 2, 35.0),
    Sketcher.Constraint("DistanceX", 0, 2, -1, 1, 29.5),
    Sketcher.Constraint("DistanceX", 4, 2, 3, 2, 3.872798),
    Sketcher.Constraint("DistanceX", 3, 2, 3, 1, 5.155087),
    Sketcher.Constraint("DistanceY", -1, 1, 0, 2, 16.85372),
    Sketcher.Constraint("DistanceX", 3, 2, 1, 2, 8.766011),
    Sketcher.Constraint("Distance", 1, 6.423537),
])
pocket16 = body.newObject("PartDesign::Pocket", "Pocket015")
pocket16.Profile = sketch24
pocket16.Type = "TwoLengths"
pocket16.Length = 38.88
pocket16.Length2 = 37
doc.recompute()

mirrored10 = body.newObject("PartDesign::Mirrored", "Mirrored009")
mirrored10.Originals = [pocket16]
mirrored10.MirrorPlane = (doc.getObject("YZ_Plane"), [""])
body.Tip = mirrored10

# Sketch on XZ plane
sketch25 = body.newObject("Sketcher::SketchObject", "Sketch024")
sketch25.AttachmentSupport = (doc.getObject("XZ_Plane"), [""])
sketch25.MapMode = "FlatFace"
sketch25.AttachmentOffset = App.Placement(V(0, 0, -71), App.Rotation())
sketch25.addGeometry([
    Part.Circle(V(-15, 7.114491, 0), V(0, 0, 1), 3),
    Part.Circle(V(15, 7.114491, 0), V(0, 0, 1), 3),
], False)
sketch25.addConstraint([
    Sketcher.Constraint("Equal", 0, 1),
    Sketcher.Constraint("Symmetric", 0, 3, 1, 3, -2),
    Sketcher.Constraint("Diameter", 0, 6.0),
    Sketcher.Constraint("DistanceX", 0, 3, -1, 1, 15.0),
    Sketcher.Constraint("DistanceY", -1, 1, 0, 3, 7.114491),
])
pocket17 = body.newObject("PartDesign::Pocket", "Pocket016")
pocket17.Profile = sketch25
pocket17.Type = "ThroughAll"
pocket17.Reversed = True

# Sketch on XZ plane
sketch26 = body.newObject("Sketcher::SketchObject", "Sketch025")
sketch26.AttachmentSupport = (doc.getObject("XZ_Plane"), [""])
sketch26.MapMode = "FlatFace"
sketch26.AttachmentOffset = App.Placement(V(0, 0, 102.100559), App.Rotation())
sketch26.addGeometry(Part.Circle(V(0, 36.759459, 0), V(0, 0, 1), 2.7), False)
sketch26.addConstraint([
    Sketcher.Constraint("PointOnObject", 0, 3, -2),
    Sketcher.Constraint("Diameter", 0, 5.4),
    Sketcher.Constraint("DistanceY", -1, 1, 0, 3, 36.759459),
])
pocket18 = body.newObject("PartDesign::Pocket", "Pocket017")
pocket18.Profile = sketch26
pocket18.Length = 70

# Sketch on XZ plane
sketch27 = body.newObject("Sketcher::SketchObject", "Sketch026")
sketch27.AttachmentSupport = (doc.getObject("XZ_Plane"), [""])
sketch27.MapMode = "FlatFace"
sketch27.AttachmentOffset = App.Placement(V(0, 0, 59.100559), App.Rotation())
sketch27.addGeometry([
    Part.ArcOfCircle(Part.Circle(V(15, 36.759459, 0), V(0, 0, 1), 8.240541), math.radians(-90), math.radians(90)),  # 0
    Part.LineSegment(V(15, 45, 0), V(3.806829, 45, 0)),  # 1
    Part.LineSegment(V(3.806829, 45, 0), V(3.806829, 28.518919, 0)),  # 2
    Part.LineSegment(V(3.806829, 28.518919, 0), V(15, 28.518919, 0)),  # 3
    Part.Circle(V(15, 36.759459, 0), V(0, 0, 1), 3.6),  # 4
], False)
sketch27.addConstraint([
    Sketcher.Constraint("Tangent", 0, 2, 1, 1),
    Sketcher.Constraint("Coincident", 1, 2, 2, 1),
    Sketcher.Constraint("Coincident", 2, 2, 3, 1),
    Sketcher.Constraint("Tangent", 3, 2, 0, 1),
    Sketcher.Constraint("Horizontal", 1),
    Sketcher.Constraint("Vertical", 2),
    Sketcher.Constraint("Horizontal", 3),
    Sketcher.Constraint("Coincident", 4, 3, 0, 3),
    Sketcher.Constraint("Diameter", 4, 7.2),
    Sketcher.Constraint("DistanceX", -1, 1, 0, 3, 15.0),
    Sketcher.Constraint("DistanceY", -1, 1, 0, 2, 45.0),
    Sketcher.Constraint("Radius", 0, 8.240541),
    Sketcher.Constraint("DistanceX", 1, 2, 1, 1, 11.193171),
])
pad9 = body.newObject("PartDesign::Pad", "Pad008")
pad9.Profile = sketch27
pad9.Length = 25
pad9.Reversed = True

# Sketch on XZ plane
sketch28 = body.newObject("Sketcher::SketchObject", "Sketch027")
sketch28.AttachmentSupport = (doc.getObject("XZ_Plane"), [""])
sketch28.MapMode = "FlatFace"
sketch28.AttachmentOffset = App.Placement(V(0, 0, 59.100559), App.Rotation())
sketch28.addGeometry(Part.Circle(V(15, 36.759459, 0), V(0, 0, 1), 3.660532), False)
sketch28.addConstraint([
    Sketcher.Constraint("DistanceX", -1, 1, 0, 3, 15.0),
    Sketcher.Constraint("Diameter", 0, 7.321064),
    Sketcher.Constraint("DistanceY", -1, 1, 0, 3, 36.759459),
])
pocket19 = body.newObject("PartDesign::Pocket", "Pocket018")
pocket19.Profile = sketch28
pocket19.Length = 25

# Sketch on XY plane
sketch29 = body.newObject("Sketcher::SketchObject", "Sketch028")
sketch29.AttachmentSupport = (doc.getObject("XY_Plane"), [""])
sketch29.MapMode = "FlatFace"
add_polygon(sketch29, [(-3.5, 35.075027), (-3.5, 41.46302), (3.5, 41.46302), (3.5, 35.075027)])  # lines 0-3
sketch29.addConstraint([
    Sketcher.Constraint("Vertical", 0),
    Sketcher.Constraint("Horizontal", 1),
    Sketcher.Constraint("Vertical", 2),
    Sketcher.Constraint("Horizontal", 3),
    Sketcher.Constraint("DistanceX", 1, 1, 1, 2, 7.0),
    Sketcher.Constraint("DistanceX", 0, 2, -1, 1, 3.5),
    Sketcher.Constraint("DistanceY", 0, 1, 0, 2, 6.387993),
    Sketcher.Constraint("DistanceY", -1, 1, 0, 2, 41.46302),
])
pocket20 = body.newObject("PartDesign::Pocket", "Pocket019")
pocket20.Profile = sketch29
pocket20.Length = 40
pocket20.Reversed = True

doc.recompute()
